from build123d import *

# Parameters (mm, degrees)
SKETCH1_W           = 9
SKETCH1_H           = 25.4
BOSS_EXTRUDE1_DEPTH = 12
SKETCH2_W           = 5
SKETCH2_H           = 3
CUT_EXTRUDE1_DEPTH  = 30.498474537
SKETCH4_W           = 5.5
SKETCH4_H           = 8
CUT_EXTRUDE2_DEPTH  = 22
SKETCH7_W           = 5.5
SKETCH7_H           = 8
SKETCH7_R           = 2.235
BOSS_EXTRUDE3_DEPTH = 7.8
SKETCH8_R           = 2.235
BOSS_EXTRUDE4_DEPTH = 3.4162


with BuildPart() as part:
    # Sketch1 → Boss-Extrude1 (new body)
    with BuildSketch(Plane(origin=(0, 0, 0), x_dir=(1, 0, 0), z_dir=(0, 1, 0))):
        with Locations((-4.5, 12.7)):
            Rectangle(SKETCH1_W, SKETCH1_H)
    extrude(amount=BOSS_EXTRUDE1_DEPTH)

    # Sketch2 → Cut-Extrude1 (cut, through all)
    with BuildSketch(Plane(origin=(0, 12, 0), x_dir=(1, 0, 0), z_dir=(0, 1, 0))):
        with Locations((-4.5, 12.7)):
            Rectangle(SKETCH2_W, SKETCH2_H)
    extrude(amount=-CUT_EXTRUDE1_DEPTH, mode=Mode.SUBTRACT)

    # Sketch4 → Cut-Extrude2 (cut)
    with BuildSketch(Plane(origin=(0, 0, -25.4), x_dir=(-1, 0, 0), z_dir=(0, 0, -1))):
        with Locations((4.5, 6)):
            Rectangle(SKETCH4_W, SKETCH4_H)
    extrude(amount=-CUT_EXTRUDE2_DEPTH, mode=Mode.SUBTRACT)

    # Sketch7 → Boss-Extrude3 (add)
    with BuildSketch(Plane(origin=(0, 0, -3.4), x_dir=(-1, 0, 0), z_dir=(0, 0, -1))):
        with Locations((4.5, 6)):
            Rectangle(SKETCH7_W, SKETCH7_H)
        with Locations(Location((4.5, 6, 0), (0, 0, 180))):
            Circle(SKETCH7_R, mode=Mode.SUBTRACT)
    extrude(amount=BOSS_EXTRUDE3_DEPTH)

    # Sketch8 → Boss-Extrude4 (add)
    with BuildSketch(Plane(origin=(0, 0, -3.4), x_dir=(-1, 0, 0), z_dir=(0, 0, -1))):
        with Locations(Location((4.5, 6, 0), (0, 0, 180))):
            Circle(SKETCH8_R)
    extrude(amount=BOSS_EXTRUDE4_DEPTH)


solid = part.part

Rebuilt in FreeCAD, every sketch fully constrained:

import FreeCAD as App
import Part
import Sketcher
from FreeCAD import Vector
Q = App.Units.Quantity

doc = App.newDocument("Part")
body = doc.addObject("PartDesign::Body", "Body")

sketch1 = body.newObject("Sketcher::SketchObject", "Sketch")
sketch1.AttachmentSupport = (doc.getObject("XZ_Plane"), [""])
sketch1.MapMode = "FlatFace"
sketch1.addGeometry([
    Part.LineSegment(Vector(-9, -25.4, 0), Vector(-9, 0, 0)),
    Part.LineSegment(Vector(-9, 0, 0), Vector(0, 0, 0)),
    Part.LineSegment(Vector(0, 0, 0), Vector(0, -25.4, 0)),
    Part.LineSegment(Vector(0, -25.4, 0), Vector(-9, -25.4, 0)),
], False)
sketch1.addConstraint([
    Sketcher.Constraint("Coincident", 0, 2, 1, 1),
    Sketcher.Constraint("Coincident", 1, 2, 2, 1),
    Sketcher.Constraint("Coincident", 2, 2, 3, 1),
    Sketcher.Constraint("Coincident", 3, 2, 0, 1),
    Sketcher.Constraint("Vertical", 0),
    Sketcher.Constraint("Horizontal", 1),
    Sketcher.Constraint("Vertical", 2),
    Sketcher.Constraint("Horizontal", 3),
    Sketcher.Constraint("Coincident", 1, 2, -1, 1),
    Sketcher.Constraint("DistanceX", 1, 1, 1, 2, Q("9 mm")),
    Sketcher.Constraint("DistanceY", 0, 1, 0, 2, Q("25.4 mm")),
])
pad1 = body.newObject("PartDesign::Pad", "Pad")
pad1.Profile = sketch1
pad1.Length = 12
pad1.Reversed = True

sketch2 = body.newObject("Sketcher::SketchObject", "Sketch001")
sketch2.AttachmentSupport = (doc.getObject("XZ_Plane"), [""])
sketch2.MapMode = "FlatFace"
sketch2.AttachmentOffset = App.Placement(Vector(0, 0, -12), App.Rotation())
sketch2.addGeometry([
    Part.LineSegment(Vector(-7, -14.2, 0), Vector(-7, -11.2, 0)),
    Part.LineSegment(Vector(-7, -11.2, 0), Vector(-2, -11.2, 0)),
    Part.LineSegment(Vector(-2, -11.2, 0), Vector(-2, -14.2, 0)),
    Part.LineSegment(Vector(-2, -14.2, 0), Vector(-7, -14.2, 0)),
], False)
sketch2.addConstraint([
    Sketcher.Constraint("Coincident", 0, 2, 1, 1),
    Sketcher.Constraint("Coincident", 1, 2, 2, 1),
    Sketcher.Constraint("Coincident", 2, 2, 3, 1),
    Sketcher.Constraint("Coincident", 3, 2, 0, 1),
    Sketcher.Constraint("Vertical", 0),
    Sketcher.Constraint("Horizontal", 1),
    Sketcher.Constraint("Vertical", 2),
    Sketcher.Constraint("Horizontal", 3),
    Sketcher.Constraint("DistanceX", 1, 1, 1, 2, Q("5 mm")),
    Sketcher.Constraint("DistanceY", 0, 1, 0, 2, Q("3 mm")),
    Sketcher.Constraint("DistanceX", 0, 2, -1, 1, Q("7 mm")),
    Sketcher.Constraint("DistanceY", 0, 2, -1, 1, Q("11.2 mm")),
])
pocket1 = body.newObject("PartDesign::Pocket", "Pocket")
pocket1.Profile = sketch2
pocket1.Type = "ThroughAll"
pocket1.Reversed = True

sketch3 = body.newObject("Sketcher::SketchObject", "Sketch002")
sketch3.AttachmentSupport = (doc.getObject("XY_Plane"), [""])
sketch3.MapMode = "FlatFace"
sketch3.AttachmentOffset = App.Placement(Vector(0, 0, -25.4), App.Rotation())
sketch3.addGeometry([
    Part.LineSegment(Vector(-1.75, 10, 0), Vector(-1.75, 2, 0)),
    Part.LineSegment(Vector(-1.75, 2, 0), Vector(-7.25, 2, 0)),
    Part.LineSegment(Vector(-7.25, 2, 0), Vector(-7.25, 10, 0)),
    Part.LineSegment(Vector(-7.25, 10, 0), Vector(-1.75, 10, 0)),
], False)
sketch3.addConstraint([
    Sketcher.Constraint("Coincident", 0, 2, 1, 1),
    Sketcher.Constraint("Coincident", 1, 2, 2, 1),
    Sketcher.Constraint("Coincident", 2, 2, 3, 1),
    Sketcher.Constraint("Coincident", 3, 2, 0, 1),
    Sketcher.Constraint("Vertical", 0),
    Sketcher.Constraint("Horizontal", 1),
    Sketcher.Constraint("Vertical", 2),
    Sketcher.Constraint("Horizontal", 3),
    Sketcher.Constraint("DistanceY", 0, 2, 0, 1, Q("8 mm")),
    Sketcher.Constraint("DistanceX", 1, 2, 1, 1, Q("5.5 mm")),
    Sketcher.Constraint("DistanceY", -1, 1, 0, 2, Q("2 mm")),
    Sketcher.Constraint("DistanceX", 0, 2, -1, 1, Q("1.75 mm")),
])
pocket2 = body.newObject("PartDesign::Pocket", "Pocket001")
pocket2.Profile = sketch3
pocket2.Length = 22
pocket2.Reversed = True

sketch4 = body.newObject("Sketcher::SketchObject", "Sketch003")
sketch4.AttachmentSupport = (doc.getObject("XY_Plane"), [""])
sketch4.MapMode = "FlatFace"
sketch4.AttachmentOffset = App.Placement(Vector(0, 0, -3.4), App.Rotation())
sketch4.addGeometry([
    Part.LineSegment(Vector(-1.75, 10, 0), Vector(-1.75, 2, 0)),
    Part.LineSegment(Vector(-1.75, 2, 0), Vector(-7.25, 2, 0)),
    Part.LineSegment(Vector(-7.25, 2, 0), Vector(-7.25, 10, 0)),
    Part.LineSegment(Vector(-7.25, 10, 0), Vector(-1.75, 10, 0)),
    Part.Circle(Vector(-4.5, 6, 0), Vector(0, 0, 1), 2.235),
], False)
sketch4.addConstraint([
    Sketcher.Constraint("Coincident", 0, 2, 1, 1),
    Sketcher.Constraint("Coincident", 1, 2, 2, 1),
    Sketcher.Constraint("Coincident", 2, 2, 3, 1),
    Sketcher.Constraint("Coincident", 3, 2, 0, 1),
    Sketcher.Constraint("Vertical", 0),
    Sketcher.Constraint("Horizontal", 1),
    Sketcher.Constraint("Vertical", 2),
    Sketcher.Constraint("Horizontal", 3),
    Sketcher.Constraint("Diameter", 4, Q("4.47 mm")),
    Sketcher.Constraint("DistanceY", 0, 2, 0, 1, Q("8 mm")),
    Sketcher.Constraint("DistanceX", 1, 2, 1, 1, Q("5.5 mm")),
    Sketcher.Constraint("DistanceY", -1, 1, 4, 3, Q("6 mm")),
    Sketcher.Constraint("DistanceY", -1, 1, 0, 2, Q("2 mm")),
    Sketcher.Constraint("DistanceX", 4, 3, -1, 1, Q("4.5 mm")),
    Sketcher.Constraint("DistanceX", 0, 2, -1, 1, Q("1.75 mm")),
])
pad2 = body.newObject("PartDesign::Pad", "Pad001")
pad2.Profile = sketch4
pad2.Length = 7.8
pad2.Reversed = True

sketch5 = body.newObject("Sketcher::SketchObject", "Sketch004")
sketch5.AttachmentSupport = (doc.getObject("XY_Plane"), [""])
sketch5.MapMode = "FlatFace"
sketch5.AttachmentOffset = App.Placement(Vector(0, 0, -3.4), App.Rotation())
sketch5.addGeometry(Part.Circle(Vector(-4.5, 6, 0), Vector(0, 0, 1), 2.235), False)
sketch5.addConstraint([
    Sketcher.Constraint("Diameter", 0, Q("4.47 mm")),
    Sketcher.Constraint("DistanceY", -1, 1, 0, 3, Q("6 mm")),
    Sketcher.Constraint("DistanceX", 0, 3, -1, 1, Q("4.5 mm")),
])
pad3 = body.newObject("PartDesign::Pad", "Pad002")
pad3.Profile = sketch5
pad3.Length = 3.4162
pad3.Reversed = True

doc.recompute()
